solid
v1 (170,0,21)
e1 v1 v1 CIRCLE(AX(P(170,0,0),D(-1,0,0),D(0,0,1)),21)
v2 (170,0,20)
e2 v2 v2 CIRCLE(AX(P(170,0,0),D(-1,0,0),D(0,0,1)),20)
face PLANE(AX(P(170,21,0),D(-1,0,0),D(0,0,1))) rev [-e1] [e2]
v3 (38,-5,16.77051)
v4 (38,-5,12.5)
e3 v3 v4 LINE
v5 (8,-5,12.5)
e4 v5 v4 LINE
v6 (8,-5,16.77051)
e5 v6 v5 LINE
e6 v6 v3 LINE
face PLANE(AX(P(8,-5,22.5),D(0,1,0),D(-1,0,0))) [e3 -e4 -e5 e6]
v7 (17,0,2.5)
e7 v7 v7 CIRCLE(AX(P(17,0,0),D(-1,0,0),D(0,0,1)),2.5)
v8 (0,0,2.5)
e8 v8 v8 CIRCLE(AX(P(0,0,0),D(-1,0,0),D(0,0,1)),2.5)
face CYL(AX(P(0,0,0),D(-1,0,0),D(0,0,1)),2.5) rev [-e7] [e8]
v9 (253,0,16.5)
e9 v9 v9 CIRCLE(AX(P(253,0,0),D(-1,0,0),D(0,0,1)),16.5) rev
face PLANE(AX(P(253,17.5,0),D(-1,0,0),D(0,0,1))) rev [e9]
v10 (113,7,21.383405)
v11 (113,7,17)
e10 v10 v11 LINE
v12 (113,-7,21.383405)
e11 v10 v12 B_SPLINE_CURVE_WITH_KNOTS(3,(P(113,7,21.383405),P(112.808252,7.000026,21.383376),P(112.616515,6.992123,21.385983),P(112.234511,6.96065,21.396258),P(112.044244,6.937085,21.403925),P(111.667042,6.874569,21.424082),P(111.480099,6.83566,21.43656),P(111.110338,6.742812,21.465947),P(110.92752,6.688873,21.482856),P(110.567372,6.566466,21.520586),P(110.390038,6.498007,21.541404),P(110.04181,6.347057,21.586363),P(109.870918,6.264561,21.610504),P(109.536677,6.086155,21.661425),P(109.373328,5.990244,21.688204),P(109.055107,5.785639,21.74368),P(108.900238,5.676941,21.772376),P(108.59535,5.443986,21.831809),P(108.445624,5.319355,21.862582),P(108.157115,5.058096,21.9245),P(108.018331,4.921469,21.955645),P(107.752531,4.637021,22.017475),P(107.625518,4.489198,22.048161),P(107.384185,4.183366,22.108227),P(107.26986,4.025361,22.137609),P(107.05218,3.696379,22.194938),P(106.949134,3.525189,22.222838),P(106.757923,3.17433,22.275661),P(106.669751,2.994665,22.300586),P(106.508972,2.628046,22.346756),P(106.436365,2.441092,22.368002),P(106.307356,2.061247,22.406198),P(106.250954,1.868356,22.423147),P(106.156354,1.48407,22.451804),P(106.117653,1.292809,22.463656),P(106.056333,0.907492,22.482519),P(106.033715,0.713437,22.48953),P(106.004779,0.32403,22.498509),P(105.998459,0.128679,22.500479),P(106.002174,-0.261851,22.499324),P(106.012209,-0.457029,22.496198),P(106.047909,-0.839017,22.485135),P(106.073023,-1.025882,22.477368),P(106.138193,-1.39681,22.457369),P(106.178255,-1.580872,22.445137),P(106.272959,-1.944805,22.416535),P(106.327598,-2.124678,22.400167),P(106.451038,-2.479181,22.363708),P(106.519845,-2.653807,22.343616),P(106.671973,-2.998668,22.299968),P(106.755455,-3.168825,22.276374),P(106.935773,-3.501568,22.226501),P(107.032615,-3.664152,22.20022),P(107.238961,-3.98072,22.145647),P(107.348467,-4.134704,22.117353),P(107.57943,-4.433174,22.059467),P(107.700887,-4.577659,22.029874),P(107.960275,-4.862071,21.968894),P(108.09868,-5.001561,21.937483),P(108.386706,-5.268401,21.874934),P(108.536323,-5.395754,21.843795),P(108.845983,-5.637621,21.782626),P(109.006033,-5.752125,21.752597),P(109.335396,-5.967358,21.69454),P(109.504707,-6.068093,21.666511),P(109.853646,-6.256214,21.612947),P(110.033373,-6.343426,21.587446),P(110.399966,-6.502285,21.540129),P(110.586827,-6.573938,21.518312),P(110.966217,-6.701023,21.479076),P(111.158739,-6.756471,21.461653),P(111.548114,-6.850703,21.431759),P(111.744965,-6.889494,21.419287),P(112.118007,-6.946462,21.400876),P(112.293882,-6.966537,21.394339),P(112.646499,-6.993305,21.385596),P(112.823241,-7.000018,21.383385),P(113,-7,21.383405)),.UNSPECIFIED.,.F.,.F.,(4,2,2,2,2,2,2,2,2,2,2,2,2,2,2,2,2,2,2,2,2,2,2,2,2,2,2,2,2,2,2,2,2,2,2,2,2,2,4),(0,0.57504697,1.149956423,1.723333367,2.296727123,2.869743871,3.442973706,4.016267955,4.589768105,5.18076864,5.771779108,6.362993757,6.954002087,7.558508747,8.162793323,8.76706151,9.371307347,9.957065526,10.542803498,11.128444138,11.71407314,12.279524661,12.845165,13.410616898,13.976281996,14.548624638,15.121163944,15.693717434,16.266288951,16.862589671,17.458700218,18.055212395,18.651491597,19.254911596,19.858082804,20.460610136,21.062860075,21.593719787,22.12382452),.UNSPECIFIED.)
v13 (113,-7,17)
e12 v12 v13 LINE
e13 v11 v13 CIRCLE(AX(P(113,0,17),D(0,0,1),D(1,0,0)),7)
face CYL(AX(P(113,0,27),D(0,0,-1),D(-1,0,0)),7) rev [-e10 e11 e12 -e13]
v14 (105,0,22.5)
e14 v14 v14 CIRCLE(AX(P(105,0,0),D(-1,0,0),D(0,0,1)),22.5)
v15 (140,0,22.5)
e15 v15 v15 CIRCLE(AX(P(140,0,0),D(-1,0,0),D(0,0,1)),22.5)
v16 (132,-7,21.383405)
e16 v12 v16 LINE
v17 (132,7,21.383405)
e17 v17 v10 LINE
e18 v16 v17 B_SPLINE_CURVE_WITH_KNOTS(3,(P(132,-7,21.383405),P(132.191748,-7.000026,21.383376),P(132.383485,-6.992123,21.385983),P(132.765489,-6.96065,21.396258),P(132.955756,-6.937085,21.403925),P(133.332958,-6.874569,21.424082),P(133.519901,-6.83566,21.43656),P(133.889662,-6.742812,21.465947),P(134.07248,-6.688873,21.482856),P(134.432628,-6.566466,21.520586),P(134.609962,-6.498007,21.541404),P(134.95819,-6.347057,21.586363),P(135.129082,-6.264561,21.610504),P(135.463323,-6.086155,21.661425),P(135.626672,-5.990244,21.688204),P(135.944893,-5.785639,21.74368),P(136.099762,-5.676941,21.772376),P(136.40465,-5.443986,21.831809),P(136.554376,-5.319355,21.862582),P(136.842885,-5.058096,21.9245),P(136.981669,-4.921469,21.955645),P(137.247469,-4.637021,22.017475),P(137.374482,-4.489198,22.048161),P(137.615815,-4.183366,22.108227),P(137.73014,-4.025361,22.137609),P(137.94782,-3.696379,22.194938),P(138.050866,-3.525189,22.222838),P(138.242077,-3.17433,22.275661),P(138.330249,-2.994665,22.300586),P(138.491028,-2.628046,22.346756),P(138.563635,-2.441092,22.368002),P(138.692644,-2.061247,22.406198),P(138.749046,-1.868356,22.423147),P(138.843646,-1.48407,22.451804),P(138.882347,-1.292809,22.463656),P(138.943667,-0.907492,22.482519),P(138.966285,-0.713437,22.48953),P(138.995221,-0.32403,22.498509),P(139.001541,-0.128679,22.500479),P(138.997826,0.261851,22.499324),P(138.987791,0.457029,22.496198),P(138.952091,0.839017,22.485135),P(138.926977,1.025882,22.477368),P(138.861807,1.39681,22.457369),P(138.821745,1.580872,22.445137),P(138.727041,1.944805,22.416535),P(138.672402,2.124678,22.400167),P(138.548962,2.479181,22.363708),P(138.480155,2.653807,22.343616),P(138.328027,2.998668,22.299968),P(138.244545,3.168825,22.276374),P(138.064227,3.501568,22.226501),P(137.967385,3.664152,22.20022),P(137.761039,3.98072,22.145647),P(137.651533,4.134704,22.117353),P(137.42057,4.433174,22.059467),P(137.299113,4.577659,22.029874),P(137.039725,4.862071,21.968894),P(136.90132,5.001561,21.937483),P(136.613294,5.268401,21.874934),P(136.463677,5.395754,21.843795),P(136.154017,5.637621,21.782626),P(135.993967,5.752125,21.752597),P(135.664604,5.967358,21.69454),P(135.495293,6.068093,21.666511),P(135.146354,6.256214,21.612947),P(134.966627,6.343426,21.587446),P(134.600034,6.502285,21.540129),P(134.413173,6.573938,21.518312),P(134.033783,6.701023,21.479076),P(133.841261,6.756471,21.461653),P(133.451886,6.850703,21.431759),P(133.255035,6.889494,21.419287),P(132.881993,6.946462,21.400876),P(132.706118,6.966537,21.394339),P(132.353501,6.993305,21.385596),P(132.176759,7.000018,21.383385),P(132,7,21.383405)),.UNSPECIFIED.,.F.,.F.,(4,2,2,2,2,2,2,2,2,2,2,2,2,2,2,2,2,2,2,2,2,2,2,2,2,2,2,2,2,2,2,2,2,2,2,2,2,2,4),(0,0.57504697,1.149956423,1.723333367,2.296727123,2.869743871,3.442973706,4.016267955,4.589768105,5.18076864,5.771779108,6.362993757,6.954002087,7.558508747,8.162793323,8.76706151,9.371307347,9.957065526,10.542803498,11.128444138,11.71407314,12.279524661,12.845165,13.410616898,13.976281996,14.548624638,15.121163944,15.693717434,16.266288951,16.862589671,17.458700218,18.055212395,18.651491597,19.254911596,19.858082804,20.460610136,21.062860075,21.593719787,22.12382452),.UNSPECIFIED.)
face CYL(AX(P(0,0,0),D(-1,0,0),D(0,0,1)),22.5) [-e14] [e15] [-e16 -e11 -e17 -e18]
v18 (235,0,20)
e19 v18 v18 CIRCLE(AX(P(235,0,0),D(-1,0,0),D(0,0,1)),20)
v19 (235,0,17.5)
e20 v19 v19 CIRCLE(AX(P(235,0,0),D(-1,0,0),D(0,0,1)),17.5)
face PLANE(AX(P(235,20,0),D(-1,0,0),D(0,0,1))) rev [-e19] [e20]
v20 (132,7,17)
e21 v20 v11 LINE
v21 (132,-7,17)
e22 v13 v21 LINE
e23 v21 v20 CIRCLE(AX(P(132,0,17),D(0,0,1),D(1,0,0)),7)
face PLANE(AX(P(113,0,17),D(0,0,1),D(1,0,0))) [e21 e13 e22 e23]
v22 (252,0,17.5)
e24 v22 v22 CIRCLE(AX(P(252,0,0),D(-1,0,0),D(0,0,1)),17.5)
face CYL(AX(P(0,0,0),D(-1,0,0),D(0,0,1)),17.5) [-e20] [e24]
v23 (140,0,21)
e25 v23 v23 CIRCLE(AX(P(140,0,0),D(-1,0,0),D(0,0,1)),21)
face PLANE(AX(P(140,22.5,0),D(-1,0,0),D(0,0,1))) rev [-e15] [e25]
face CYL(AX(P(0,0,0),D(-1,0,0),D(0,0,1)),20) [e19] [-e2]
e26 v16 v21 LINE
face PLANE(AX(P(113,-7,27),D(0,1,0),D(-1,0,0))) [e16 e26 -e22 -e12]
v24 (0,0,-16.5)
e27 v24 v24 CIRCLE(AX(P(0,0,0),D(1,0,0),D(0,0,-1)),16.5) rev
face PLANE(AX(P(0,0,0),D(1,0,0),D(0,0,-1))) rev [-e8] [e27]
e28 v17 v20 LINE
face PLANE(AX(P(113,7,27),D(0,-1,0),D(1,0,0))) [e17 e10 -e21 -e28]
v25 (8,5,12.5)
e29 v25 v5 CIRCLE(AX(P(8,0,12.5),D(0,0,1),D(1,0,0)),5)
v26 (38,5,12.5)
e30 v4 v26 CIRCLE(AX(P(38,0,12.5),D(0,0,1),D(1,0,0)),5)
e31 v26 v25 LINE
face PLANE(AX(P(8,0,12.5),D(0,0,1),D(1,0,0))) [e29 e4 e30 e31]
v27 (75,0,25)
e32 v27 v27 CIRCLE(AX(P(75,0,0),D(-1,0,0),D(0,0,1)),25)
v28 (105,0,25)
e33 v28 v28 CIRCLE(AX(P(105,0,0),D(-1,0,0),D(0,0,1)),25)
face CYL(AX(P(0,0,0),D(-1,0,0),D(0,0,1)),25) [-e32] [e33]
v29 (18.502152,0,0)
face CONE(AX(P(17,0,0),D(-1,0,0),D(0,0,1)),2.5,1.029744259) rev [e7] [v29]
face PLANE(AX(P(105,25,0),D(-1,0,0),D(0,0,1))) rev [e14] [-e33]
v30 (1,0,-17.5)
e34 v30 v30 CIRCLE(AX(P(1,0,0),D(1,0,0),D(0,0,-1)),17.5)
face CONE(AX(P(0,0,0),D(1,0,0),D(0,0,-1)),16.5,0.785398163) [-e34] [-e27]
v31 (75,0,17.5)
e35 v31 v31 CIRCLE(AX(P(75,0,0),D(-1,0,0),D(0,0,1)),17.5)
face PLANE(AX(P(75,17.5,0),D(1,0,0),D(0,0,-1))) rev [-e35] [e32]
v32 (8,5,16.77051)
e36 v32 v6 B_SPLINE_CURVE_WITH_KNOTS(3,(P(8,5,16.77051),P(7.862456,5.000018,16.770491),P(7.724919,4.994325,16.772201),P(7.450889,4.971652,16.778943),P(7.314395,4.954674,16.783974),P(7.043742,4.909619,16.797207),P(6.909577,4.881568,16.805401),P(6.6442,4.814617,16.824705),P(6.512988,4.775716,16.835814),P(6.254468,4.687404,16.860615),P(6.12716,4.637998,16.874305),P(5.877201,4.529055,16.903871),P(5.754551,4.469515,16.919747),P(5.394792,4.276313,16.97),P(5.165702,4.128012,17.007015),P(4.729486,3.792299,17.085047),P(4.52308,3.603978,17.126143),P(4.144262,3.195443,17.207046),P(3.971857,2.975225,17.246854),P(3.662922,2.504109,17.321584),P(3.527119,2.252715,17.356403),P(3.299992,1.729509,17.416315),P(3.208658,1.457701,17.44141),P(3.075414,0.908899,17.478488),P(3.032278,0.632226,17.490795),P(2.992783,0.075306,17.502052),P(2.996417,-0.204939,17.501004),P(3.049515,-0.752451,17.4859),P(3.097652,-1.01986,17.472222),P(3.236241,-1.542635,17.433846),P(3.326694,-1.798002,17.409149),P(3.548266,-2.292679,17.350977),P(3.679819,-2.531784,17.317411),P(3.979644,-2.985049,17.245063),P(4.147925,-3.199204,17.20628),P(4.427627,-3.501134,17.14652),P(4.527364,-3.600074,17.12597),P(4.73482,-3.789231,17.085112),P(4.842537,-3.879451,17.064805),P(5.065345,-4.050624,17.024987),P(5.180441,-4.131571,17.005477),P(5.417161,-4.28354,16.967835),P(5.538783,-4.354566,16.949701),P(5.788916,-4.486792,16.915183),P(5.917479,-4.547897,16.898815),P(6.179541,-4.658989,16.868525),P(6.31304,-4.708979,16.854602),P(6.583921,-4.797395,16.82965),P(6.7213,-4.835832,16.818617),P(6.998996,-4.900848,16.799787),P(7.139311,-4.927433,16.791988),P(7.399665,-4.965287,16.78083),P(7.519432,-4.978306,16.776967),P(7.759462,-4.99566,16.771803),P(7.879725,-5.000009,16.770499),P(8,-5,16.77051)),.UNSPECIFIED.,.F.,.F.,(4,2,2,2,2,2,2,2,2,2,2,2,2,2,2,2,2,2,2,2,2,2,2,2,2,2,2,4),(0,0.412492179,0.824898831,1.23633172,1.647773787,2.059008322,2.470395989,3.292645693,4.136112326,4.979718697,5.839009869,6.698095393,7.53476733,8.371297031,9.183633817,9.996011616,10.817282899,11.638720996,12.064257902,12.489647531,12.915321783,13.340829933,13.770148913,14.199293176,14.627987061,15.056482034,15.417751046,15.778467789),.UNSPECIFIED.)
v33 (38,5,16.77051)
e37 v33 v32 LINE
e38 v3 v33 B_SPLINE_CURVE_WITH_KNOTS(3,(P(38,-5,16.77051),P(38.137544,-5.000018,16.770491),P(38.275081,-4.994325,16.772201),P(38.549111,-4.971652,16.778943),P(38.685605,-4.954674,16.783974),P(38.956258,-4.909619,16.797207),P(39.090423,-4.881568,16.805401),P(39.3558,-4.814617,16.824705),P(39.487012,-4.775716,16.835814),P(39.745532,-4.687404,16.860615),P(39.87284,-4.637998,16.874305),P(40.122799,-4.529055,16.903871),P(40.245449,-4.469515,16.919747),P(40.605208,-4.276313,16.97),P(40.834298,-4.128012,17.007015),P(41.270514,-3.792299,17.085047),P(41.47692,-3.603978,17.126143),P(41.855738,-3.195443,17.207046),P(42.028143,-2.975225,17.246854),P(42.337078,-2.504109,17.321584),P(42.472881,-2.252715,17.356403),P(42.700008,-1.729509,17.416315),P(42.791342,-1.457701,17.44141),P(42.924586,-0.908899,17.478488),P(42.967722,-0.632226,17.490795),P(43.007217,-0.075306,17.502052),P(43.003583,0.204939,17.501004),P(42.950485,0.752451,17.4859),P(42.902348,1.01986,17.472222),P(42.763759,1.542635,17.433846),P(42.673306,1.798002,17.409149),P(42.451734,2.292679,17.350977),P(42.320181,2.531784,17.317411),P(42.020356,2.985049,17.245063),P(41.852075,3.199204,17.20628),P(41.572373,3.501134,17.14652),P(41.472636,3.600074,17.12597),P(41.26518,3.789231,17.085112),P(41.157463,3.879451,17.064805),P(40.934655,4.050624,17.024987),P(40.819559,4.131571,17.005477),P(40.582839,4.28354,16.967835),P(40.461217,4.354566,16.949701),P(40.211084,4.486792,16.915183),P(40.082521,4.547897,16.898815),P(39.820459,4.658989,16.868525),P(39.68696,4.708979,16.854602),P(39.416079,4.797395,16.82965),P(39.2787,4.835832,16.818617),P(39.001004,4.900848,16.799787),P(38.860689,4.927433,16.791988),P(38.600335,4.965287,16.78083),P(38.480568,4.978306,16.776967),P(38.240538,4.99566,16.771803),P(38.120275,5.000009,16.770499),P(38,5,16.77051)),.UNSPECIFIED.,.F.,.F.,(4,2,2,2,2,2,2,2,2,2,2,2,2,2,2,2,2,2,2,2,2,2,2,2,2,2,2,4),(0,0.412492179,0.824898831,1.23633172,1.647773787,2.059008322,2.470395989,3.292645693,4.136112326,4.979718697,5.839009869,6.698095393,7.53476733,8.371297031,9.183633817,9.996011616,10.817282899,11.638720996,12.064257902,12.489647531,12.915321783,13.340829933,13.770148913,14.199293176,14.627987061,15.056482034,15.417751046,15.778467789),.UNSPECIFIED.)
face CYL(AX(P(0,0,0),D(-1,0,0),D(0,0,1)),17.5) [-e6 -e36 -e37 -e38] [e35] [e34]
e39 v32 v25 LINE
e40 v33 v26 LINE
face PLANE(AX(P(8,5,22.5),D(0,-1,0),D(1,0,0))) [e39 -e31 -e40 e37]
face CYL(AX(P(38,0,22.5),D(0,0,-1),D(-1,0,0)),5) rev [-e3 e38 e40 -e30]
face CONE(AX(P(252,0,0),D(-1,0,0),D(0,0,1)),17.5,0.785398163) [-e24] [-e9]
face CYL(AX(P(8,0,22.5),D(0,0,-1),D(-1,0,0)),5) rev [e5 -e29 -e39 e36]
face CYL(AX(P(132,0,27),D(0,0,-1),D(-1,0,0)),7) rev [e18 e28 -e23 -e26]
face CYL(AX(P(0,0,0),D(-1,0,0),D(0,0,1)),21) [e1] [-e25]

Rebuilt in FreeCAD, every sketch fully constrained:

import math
import FreeCAD as App
import Part
import Sketcher
Q = App.Units.Quantity


def edges_at(feature, points):
    """Names of the edges that pass closest to the given points."""
    edges = feature.Shape.Edges
    near = lambda p: min(range(len(edges)), key=lambda i: edges[i].distToShape(Part.Vertex(*p))[0])
    return sorted({f"Edge{near(p) + 1}" for p in points})

doc = App.newDocument("Part")
params = doc.addObject("Spreadsheet::Sheet", "Params")
for row, (alias, value) in enumerate([
    ("sketch1_width", "253 mm"),
    ("sketch1_width2", "18 mm"),
    ("sketch1_width3", "65 mm"),
    ("sketch1_width4", "30 mm"),
    ("sketch1_width5", "35 mm"),
    ("revolution_angle", "360 deg"),
    ("sketch2_diameter", "5 mm"),
    ("hole_diameter", "5 mm"),
    ("hole_depth", "17 mm"),
    ("sketch3_radius", "7 mm"),
    ("sketch3_width", "19 mm"),
    ("pocket1_length", "10 mm"),
    ("sketch4_radius", "5 mm"),
    ("sketch4_width", "30 mm"),
    ("pocket2_length", "10 mm"),
    ("chamfer_size", "1 mm"),
], start=1):
    params.set(f"A{row}", alias)
    params.set(f"B{row}", "=" + value)
    params.setAlias(f"B{row}", alias)

body = doc.addObject("PartDesign::Body", "Body")

sketch1 = doc.addObject("Sketcher::SketchObject", "Sketch")
body.addObject(sketch1)
sketch1.AttachmentSupport = (doc.XY_Plane, [""])
sketch1.MapMode = "FlatFace"
sketch1.addGeometry([
    Part.LineSegment(App.Vector(0, 17.5, 0), App.Vector(0, 0, 0)),
    Part.LineSegment(App.Vector(0, 0, 0), App.Vector(253, 0, 0)),
    Part.LineSegment(App.Vector(253, 0, 0), App.Vector(253, 17.5, 0)),
    Part.LineSegment(App.Vector(253, 17.5, 0), App.Vector(235, 17.5, 0)),
    Part.LineSegment(App.Vector(235, 17.5, 0), App.Vector(235, 20, 0)),
    Part.LineSegment(App.Vector(235, 20, 0), App.Vector(170, 20, 0)),
    Part.LineSegment(App.Vector(170, 20, 0), App.Vector(170, 21, 0)),
    Part.LineSegment(App.Vector(170, 21, 0), App.Vector(140, 21, 0)),
    Part.LineSegment(App.Vector(140, 21, 0), App.Vector(140, 22.5, 0)),
    Part.LineSegment(App.Vector(140, 22.5, 0), App.Vector(105, 22.5, 0)),
    Part.LineSegment(App.Vector(105, 22.5, 0), App.Vector(105, 25, 0)),
    Part.LineSegment(App.Vector(105, 25, 0), App.Vector(75, 25, 0)),
    Part.LineSegment(App.Vector(75, 25, 0), App.Vector(75, 17.5, 0)),
    Part.LineSegment(App.Vector(75, 17.5, 0), App.Vector(0, 17.5, 0)),
], False)
sketch1.addConstraint([
    Sketcher.Constraint("Coincident", 0, 2, 1, 1),
    Sketcher.Constraint("Coincident", 1, 2, 2, 1),
    Sketcher.Constraint("Coincident", 2, 2, 3, 1),
    Sketcher.Constraint("Coincident", 3, 2, 4, 1),
    Sketcher.Constraint("Coincident", 4, 2, 5, 1),
    Sketcher.Constraint("Coincident", 5, 2, 6, 1),
    Sketcher.Constraint("Coincident", 6, 2, 7, 1),
    Sketcher.Constraint("Coincident", 7, 2, 8, 1),
    Sketcher.Constraint("Coincident", 8, 2, 9, 1),
    Sketcher.Constraint("Coincident", 9, 2, 10, 1),
    Sketcher.Constraint("Coincident", 10, 2, 11, 1),
    Sketcher.Constraint("Coincident", 11, 2, 12, 1),
    Sketcher.Constraint("Coincident", 12, 2, 13, 1),
    Sketcher.Constraint("Coincident", 13, 2, 0, 1),
    Sketcher.Constraint("Vertical", 0),
    Sketcher.Constraint("Horizontal", 1),
    Sketcher.Constraint("Vertical", 2),
    Sketcher.Constraint("Horizontal", 3),
    Sketcher.Constraint("Vertical", 4),
    Sketcher.Constraint("Horizontal", 5),
    Sketcher.Constraint("Vertical", 6),
    Sketcher.Constraint("Horizontal", 7),
    Sketcher.Constraint("Vertical", 8),
    Sketcher.Constraint("Horizontal", 9),
    Sketcher.Constraint("Vertical", 10),
    Sketcher.Constraint("Horizontal", 11),
    Sketcher.Constraint("Vertical", 12),
    Sketcher.Constraint("Horizontal", 13),
    Sketcher.Constraint("Coincident", 0, 2, -1, 1),
    Sketcher.Constraint("Horizontal", 3, 2, 12, 2),
    Sketcher.Constraint("Equal", 7, 11),
    Sketcher.Constraint("Equal", 4, 10),
    Sketcher.Constraint("DistanceX", 1, 1, 1, 2, Q("253 mm")),
    Sketcher.Constraint("DistanceX", 3, 2, 3, 1, Q("18 mm")),
    Sketcher.Constraint("DistanceX", 5, 2, 5, 1, Q("65 mm")),
    Sketcher.Constraint("DistanceX", 7, 2, 7, 1, Q("30 mm")),
    Sketcher.Constraint("DistanceX", 9, 2, 9, 1, Q("35 mm")),
    Sketcher.Constraint("DistanceY", 6, 1, 6, 2, Q("1 mm")),
    Sketcher.Constraint("DistanceY", 0, 2, 0, 1, Q("17.5 mm")),
    Sketcher.Constraint("DistanceY", 4, 1, 4, 2, Q("2.5 mm")),
    Sketcher.Constraint("DistanceY", 8, 1, 8, 2, Q("1.5 mm")),
])
sketch1.setExpression("Constraints[32]", "Params.sketch1_width")
sketch1.setExpression("Constraints[33]", "Params.sketch1_width2")
sketch1.setExpression("Constraints[34]", "Params.sketch1_width3")
sketch1.setExpression("Constraints[35]", "Params.sketch1_width4")
sketch1.setExpression("Constraints[36]", "Params.sketch1_width5")
revolution = doc.addObject("PartDesign::Revolution", "Revolution")
body.addObject(revolution)
revolution.Profile = sketch1
revolution.ReferenceAxis = (sketch1, ["H_Axis"])
revolution.setExpression("Angle", "Params.revolution_angle")

sketch2 = doc.addObject("Sketcher::SketchObject", "Sketch001")
body.addObject(sketch2)
sketch2.AttachmentSupport = (doc.YZ_Plane, [""])
sketch2.MapMode = "FlatFace"
sketch2.addGeometry(Part.Circle(App.Vector(0, 0, 0), App.Vector(0, 0, 1), 2.5), False)
sketch2.addConstraint([
    Sketcher.Constraint("Coincident", 0, 3, -1, 1),
    Sketcher.Constraint("Diameter", 0, Q("5 mm")),
])
sketch2.setExpression("Constraints[1]", "Params.sketch2_diameter")
doc.recompute()
hole = doc.addObject("PartDesign::Hole", "Hole")
body.addObject(hole)
hole.Profile = sketch2
hole.ThreadType = "None"
hole.setExpression("Diameter", "Params.hole_diameter")
hole.DepthType = "Dimension"
hole.setExpression("Depth", "Params.hole_depth")
hole.DrillPoint = "Angled"
hole.DrillPointAngle = 118
hole.Reversed = True

sketch3 = doc.addObject("Sketcher::SketchObject", "Sketch002")
body.addObject(sketch3)
sketch3.AttachmentSupport = (doc.XY_Plane, [""])
sketch3.MapMode = "FlatFace"
sketch3.AttachmentOffset = App.Placement(App.Vector(0, 0, 17), App.Rotation())
sketch3.addGeometry([
    Part.LineSegment(App.Vector(132, 7, 0), App.Vector(113, 7, 0)),
    Part.ArcOfCircle(Part.Circle(App.Vector(113, 0, 0), App.Vector(0, 0, 1), 7), math.radians(90), math.radians(270)),
    Part.LineSegment(App.Vector(113, -7, 0), App.Vector(132, -7, 0)),
    Part.ArcOfCircle(Part.Circle(App.Vector(132, 0, 0), App.Vector(0, 0, 1), 7), math.radians(-90), math.radians(90)),
], False)
sketch3.addConstraint([
    Sketcher.Constraint("Tangent", 0, 2, 1, 1),
    Sketcher.Constraint("Tangent", 1, 2, 2, 1),
    Sketcher.Constraint("Tangent", 2, 2, 3, 1),
    Sketcher.Constraint("Tangent", 3, 2, 0, 1),
    Sketcher.Constraint("Horizontal", 0),
    Sketcher.Constraint("Horizontal", 2),
    Sketcher.Constraint("PointOnObject", 1, 3, -1),
    Sketcher.Constraint("Radius", 1, Q("7 mm")),
    Sketcher.Constraint("DistanceX", 0, 2, 0, 1, Q("19 mm")),
    Sketcher.Constraint("DistanceX", -1, 1, 1, 3, Q("113 mm")),
])
sketch3.setExpression("Constraints[7]", "Params.sketch3_radius")
sketch3.setExpression("Constraints[8]", "Params.sketch3_width")
pocket1 = doc.addObject("PartDesign::Pocket", "Pocket")
body.addObject(pocket1)
pocket1.Profile = sketch3
pocket1.setExpression("Length", "Params.pocket1_length")
pocket1.Reversed = True

sketch4 = doc.addObject("Sketcher::SketchObject", "Sketch003")
body.addObject(sketch4)
sketch4.AttachmentSupport = (doc.XY_Plane, [""])
sketch4.MapMode = "FlatFace"
sketch4.AttachmentOffset = App.Placement(App.Vector(0, 0, 12.5), App.Rotation())
sketch4.addGeometry([
    Part.LineSegment(App.Vector(38, 5, 0), App.Vector(8, 5, 0)),
    Part.ArcOfCircle(Part.Circle(App.Vector(8, 0, 0), App.Vector(0, 0, 1), 5), math.radians(90), math.radians(270)),
    Part.LineSegment(App.Vector(8, -5, 0), App.Vector(38, -5, 0)),
    Part.ArcOfCircle(Part.Circle(App.Vector(38, 0, 0), App.Vector(0, 0, 1), 5), math.radians(-90), math.radians(90)),
], False)
sketch4.addConstraint([
    Sketcher.Constraint("Tangent", 0, 2, 1, 1),
    Sketcher.Constraint("Tangent", 1, 2, 2, 1),
    Sketcher.Constraint("Tangent", 2, 2, 3, 1),
    Sketcher.Constraint("Tangent", 3, 2, 0, 1),
    Sketcher.Constraint("Horizontal", 0),
    Sketcher.Constraint("Horizontal", 2),
    Sketcher.Constraint("PointOnObject", 1, 3, -1),
    Sketcher.Constraint("Radius", 1, Q("5 mm")),
    Sketcher.Constraint("DistanceX", 0, 2, 0, 1, Q("30 mm")),
    Sketcher.Constraint("DistanceX", -1, 1, 1, 3, Q("8 mm")),
])
sketch4.setExpression("Constraints[7]", "Params.sketch4_radius")
sketch4.setExpression("Constraints[8]", "Params.sketch4_width")
pocket2 = doc.addObject("PartDesign::Pocket", "Pocket001")
body.addObject(pocket2)
pocket2.Profile = sketch4
pocket2.setExpression("Length", "Params.pocket2_length")
pocket2.Reversed = True
doc.recompute()

chamfer = doc.addObject("PartDesign::Chamfer", "Chamfer")
body.addObject(chamfer)
chamfer.Base = (pocket2, edges_at(pocket2, [(253, 0, -17.5), (0, 0, -17.5)]))
chamfer.setExpression("Size", "Params.chamfer_size")

doc.recompute()
